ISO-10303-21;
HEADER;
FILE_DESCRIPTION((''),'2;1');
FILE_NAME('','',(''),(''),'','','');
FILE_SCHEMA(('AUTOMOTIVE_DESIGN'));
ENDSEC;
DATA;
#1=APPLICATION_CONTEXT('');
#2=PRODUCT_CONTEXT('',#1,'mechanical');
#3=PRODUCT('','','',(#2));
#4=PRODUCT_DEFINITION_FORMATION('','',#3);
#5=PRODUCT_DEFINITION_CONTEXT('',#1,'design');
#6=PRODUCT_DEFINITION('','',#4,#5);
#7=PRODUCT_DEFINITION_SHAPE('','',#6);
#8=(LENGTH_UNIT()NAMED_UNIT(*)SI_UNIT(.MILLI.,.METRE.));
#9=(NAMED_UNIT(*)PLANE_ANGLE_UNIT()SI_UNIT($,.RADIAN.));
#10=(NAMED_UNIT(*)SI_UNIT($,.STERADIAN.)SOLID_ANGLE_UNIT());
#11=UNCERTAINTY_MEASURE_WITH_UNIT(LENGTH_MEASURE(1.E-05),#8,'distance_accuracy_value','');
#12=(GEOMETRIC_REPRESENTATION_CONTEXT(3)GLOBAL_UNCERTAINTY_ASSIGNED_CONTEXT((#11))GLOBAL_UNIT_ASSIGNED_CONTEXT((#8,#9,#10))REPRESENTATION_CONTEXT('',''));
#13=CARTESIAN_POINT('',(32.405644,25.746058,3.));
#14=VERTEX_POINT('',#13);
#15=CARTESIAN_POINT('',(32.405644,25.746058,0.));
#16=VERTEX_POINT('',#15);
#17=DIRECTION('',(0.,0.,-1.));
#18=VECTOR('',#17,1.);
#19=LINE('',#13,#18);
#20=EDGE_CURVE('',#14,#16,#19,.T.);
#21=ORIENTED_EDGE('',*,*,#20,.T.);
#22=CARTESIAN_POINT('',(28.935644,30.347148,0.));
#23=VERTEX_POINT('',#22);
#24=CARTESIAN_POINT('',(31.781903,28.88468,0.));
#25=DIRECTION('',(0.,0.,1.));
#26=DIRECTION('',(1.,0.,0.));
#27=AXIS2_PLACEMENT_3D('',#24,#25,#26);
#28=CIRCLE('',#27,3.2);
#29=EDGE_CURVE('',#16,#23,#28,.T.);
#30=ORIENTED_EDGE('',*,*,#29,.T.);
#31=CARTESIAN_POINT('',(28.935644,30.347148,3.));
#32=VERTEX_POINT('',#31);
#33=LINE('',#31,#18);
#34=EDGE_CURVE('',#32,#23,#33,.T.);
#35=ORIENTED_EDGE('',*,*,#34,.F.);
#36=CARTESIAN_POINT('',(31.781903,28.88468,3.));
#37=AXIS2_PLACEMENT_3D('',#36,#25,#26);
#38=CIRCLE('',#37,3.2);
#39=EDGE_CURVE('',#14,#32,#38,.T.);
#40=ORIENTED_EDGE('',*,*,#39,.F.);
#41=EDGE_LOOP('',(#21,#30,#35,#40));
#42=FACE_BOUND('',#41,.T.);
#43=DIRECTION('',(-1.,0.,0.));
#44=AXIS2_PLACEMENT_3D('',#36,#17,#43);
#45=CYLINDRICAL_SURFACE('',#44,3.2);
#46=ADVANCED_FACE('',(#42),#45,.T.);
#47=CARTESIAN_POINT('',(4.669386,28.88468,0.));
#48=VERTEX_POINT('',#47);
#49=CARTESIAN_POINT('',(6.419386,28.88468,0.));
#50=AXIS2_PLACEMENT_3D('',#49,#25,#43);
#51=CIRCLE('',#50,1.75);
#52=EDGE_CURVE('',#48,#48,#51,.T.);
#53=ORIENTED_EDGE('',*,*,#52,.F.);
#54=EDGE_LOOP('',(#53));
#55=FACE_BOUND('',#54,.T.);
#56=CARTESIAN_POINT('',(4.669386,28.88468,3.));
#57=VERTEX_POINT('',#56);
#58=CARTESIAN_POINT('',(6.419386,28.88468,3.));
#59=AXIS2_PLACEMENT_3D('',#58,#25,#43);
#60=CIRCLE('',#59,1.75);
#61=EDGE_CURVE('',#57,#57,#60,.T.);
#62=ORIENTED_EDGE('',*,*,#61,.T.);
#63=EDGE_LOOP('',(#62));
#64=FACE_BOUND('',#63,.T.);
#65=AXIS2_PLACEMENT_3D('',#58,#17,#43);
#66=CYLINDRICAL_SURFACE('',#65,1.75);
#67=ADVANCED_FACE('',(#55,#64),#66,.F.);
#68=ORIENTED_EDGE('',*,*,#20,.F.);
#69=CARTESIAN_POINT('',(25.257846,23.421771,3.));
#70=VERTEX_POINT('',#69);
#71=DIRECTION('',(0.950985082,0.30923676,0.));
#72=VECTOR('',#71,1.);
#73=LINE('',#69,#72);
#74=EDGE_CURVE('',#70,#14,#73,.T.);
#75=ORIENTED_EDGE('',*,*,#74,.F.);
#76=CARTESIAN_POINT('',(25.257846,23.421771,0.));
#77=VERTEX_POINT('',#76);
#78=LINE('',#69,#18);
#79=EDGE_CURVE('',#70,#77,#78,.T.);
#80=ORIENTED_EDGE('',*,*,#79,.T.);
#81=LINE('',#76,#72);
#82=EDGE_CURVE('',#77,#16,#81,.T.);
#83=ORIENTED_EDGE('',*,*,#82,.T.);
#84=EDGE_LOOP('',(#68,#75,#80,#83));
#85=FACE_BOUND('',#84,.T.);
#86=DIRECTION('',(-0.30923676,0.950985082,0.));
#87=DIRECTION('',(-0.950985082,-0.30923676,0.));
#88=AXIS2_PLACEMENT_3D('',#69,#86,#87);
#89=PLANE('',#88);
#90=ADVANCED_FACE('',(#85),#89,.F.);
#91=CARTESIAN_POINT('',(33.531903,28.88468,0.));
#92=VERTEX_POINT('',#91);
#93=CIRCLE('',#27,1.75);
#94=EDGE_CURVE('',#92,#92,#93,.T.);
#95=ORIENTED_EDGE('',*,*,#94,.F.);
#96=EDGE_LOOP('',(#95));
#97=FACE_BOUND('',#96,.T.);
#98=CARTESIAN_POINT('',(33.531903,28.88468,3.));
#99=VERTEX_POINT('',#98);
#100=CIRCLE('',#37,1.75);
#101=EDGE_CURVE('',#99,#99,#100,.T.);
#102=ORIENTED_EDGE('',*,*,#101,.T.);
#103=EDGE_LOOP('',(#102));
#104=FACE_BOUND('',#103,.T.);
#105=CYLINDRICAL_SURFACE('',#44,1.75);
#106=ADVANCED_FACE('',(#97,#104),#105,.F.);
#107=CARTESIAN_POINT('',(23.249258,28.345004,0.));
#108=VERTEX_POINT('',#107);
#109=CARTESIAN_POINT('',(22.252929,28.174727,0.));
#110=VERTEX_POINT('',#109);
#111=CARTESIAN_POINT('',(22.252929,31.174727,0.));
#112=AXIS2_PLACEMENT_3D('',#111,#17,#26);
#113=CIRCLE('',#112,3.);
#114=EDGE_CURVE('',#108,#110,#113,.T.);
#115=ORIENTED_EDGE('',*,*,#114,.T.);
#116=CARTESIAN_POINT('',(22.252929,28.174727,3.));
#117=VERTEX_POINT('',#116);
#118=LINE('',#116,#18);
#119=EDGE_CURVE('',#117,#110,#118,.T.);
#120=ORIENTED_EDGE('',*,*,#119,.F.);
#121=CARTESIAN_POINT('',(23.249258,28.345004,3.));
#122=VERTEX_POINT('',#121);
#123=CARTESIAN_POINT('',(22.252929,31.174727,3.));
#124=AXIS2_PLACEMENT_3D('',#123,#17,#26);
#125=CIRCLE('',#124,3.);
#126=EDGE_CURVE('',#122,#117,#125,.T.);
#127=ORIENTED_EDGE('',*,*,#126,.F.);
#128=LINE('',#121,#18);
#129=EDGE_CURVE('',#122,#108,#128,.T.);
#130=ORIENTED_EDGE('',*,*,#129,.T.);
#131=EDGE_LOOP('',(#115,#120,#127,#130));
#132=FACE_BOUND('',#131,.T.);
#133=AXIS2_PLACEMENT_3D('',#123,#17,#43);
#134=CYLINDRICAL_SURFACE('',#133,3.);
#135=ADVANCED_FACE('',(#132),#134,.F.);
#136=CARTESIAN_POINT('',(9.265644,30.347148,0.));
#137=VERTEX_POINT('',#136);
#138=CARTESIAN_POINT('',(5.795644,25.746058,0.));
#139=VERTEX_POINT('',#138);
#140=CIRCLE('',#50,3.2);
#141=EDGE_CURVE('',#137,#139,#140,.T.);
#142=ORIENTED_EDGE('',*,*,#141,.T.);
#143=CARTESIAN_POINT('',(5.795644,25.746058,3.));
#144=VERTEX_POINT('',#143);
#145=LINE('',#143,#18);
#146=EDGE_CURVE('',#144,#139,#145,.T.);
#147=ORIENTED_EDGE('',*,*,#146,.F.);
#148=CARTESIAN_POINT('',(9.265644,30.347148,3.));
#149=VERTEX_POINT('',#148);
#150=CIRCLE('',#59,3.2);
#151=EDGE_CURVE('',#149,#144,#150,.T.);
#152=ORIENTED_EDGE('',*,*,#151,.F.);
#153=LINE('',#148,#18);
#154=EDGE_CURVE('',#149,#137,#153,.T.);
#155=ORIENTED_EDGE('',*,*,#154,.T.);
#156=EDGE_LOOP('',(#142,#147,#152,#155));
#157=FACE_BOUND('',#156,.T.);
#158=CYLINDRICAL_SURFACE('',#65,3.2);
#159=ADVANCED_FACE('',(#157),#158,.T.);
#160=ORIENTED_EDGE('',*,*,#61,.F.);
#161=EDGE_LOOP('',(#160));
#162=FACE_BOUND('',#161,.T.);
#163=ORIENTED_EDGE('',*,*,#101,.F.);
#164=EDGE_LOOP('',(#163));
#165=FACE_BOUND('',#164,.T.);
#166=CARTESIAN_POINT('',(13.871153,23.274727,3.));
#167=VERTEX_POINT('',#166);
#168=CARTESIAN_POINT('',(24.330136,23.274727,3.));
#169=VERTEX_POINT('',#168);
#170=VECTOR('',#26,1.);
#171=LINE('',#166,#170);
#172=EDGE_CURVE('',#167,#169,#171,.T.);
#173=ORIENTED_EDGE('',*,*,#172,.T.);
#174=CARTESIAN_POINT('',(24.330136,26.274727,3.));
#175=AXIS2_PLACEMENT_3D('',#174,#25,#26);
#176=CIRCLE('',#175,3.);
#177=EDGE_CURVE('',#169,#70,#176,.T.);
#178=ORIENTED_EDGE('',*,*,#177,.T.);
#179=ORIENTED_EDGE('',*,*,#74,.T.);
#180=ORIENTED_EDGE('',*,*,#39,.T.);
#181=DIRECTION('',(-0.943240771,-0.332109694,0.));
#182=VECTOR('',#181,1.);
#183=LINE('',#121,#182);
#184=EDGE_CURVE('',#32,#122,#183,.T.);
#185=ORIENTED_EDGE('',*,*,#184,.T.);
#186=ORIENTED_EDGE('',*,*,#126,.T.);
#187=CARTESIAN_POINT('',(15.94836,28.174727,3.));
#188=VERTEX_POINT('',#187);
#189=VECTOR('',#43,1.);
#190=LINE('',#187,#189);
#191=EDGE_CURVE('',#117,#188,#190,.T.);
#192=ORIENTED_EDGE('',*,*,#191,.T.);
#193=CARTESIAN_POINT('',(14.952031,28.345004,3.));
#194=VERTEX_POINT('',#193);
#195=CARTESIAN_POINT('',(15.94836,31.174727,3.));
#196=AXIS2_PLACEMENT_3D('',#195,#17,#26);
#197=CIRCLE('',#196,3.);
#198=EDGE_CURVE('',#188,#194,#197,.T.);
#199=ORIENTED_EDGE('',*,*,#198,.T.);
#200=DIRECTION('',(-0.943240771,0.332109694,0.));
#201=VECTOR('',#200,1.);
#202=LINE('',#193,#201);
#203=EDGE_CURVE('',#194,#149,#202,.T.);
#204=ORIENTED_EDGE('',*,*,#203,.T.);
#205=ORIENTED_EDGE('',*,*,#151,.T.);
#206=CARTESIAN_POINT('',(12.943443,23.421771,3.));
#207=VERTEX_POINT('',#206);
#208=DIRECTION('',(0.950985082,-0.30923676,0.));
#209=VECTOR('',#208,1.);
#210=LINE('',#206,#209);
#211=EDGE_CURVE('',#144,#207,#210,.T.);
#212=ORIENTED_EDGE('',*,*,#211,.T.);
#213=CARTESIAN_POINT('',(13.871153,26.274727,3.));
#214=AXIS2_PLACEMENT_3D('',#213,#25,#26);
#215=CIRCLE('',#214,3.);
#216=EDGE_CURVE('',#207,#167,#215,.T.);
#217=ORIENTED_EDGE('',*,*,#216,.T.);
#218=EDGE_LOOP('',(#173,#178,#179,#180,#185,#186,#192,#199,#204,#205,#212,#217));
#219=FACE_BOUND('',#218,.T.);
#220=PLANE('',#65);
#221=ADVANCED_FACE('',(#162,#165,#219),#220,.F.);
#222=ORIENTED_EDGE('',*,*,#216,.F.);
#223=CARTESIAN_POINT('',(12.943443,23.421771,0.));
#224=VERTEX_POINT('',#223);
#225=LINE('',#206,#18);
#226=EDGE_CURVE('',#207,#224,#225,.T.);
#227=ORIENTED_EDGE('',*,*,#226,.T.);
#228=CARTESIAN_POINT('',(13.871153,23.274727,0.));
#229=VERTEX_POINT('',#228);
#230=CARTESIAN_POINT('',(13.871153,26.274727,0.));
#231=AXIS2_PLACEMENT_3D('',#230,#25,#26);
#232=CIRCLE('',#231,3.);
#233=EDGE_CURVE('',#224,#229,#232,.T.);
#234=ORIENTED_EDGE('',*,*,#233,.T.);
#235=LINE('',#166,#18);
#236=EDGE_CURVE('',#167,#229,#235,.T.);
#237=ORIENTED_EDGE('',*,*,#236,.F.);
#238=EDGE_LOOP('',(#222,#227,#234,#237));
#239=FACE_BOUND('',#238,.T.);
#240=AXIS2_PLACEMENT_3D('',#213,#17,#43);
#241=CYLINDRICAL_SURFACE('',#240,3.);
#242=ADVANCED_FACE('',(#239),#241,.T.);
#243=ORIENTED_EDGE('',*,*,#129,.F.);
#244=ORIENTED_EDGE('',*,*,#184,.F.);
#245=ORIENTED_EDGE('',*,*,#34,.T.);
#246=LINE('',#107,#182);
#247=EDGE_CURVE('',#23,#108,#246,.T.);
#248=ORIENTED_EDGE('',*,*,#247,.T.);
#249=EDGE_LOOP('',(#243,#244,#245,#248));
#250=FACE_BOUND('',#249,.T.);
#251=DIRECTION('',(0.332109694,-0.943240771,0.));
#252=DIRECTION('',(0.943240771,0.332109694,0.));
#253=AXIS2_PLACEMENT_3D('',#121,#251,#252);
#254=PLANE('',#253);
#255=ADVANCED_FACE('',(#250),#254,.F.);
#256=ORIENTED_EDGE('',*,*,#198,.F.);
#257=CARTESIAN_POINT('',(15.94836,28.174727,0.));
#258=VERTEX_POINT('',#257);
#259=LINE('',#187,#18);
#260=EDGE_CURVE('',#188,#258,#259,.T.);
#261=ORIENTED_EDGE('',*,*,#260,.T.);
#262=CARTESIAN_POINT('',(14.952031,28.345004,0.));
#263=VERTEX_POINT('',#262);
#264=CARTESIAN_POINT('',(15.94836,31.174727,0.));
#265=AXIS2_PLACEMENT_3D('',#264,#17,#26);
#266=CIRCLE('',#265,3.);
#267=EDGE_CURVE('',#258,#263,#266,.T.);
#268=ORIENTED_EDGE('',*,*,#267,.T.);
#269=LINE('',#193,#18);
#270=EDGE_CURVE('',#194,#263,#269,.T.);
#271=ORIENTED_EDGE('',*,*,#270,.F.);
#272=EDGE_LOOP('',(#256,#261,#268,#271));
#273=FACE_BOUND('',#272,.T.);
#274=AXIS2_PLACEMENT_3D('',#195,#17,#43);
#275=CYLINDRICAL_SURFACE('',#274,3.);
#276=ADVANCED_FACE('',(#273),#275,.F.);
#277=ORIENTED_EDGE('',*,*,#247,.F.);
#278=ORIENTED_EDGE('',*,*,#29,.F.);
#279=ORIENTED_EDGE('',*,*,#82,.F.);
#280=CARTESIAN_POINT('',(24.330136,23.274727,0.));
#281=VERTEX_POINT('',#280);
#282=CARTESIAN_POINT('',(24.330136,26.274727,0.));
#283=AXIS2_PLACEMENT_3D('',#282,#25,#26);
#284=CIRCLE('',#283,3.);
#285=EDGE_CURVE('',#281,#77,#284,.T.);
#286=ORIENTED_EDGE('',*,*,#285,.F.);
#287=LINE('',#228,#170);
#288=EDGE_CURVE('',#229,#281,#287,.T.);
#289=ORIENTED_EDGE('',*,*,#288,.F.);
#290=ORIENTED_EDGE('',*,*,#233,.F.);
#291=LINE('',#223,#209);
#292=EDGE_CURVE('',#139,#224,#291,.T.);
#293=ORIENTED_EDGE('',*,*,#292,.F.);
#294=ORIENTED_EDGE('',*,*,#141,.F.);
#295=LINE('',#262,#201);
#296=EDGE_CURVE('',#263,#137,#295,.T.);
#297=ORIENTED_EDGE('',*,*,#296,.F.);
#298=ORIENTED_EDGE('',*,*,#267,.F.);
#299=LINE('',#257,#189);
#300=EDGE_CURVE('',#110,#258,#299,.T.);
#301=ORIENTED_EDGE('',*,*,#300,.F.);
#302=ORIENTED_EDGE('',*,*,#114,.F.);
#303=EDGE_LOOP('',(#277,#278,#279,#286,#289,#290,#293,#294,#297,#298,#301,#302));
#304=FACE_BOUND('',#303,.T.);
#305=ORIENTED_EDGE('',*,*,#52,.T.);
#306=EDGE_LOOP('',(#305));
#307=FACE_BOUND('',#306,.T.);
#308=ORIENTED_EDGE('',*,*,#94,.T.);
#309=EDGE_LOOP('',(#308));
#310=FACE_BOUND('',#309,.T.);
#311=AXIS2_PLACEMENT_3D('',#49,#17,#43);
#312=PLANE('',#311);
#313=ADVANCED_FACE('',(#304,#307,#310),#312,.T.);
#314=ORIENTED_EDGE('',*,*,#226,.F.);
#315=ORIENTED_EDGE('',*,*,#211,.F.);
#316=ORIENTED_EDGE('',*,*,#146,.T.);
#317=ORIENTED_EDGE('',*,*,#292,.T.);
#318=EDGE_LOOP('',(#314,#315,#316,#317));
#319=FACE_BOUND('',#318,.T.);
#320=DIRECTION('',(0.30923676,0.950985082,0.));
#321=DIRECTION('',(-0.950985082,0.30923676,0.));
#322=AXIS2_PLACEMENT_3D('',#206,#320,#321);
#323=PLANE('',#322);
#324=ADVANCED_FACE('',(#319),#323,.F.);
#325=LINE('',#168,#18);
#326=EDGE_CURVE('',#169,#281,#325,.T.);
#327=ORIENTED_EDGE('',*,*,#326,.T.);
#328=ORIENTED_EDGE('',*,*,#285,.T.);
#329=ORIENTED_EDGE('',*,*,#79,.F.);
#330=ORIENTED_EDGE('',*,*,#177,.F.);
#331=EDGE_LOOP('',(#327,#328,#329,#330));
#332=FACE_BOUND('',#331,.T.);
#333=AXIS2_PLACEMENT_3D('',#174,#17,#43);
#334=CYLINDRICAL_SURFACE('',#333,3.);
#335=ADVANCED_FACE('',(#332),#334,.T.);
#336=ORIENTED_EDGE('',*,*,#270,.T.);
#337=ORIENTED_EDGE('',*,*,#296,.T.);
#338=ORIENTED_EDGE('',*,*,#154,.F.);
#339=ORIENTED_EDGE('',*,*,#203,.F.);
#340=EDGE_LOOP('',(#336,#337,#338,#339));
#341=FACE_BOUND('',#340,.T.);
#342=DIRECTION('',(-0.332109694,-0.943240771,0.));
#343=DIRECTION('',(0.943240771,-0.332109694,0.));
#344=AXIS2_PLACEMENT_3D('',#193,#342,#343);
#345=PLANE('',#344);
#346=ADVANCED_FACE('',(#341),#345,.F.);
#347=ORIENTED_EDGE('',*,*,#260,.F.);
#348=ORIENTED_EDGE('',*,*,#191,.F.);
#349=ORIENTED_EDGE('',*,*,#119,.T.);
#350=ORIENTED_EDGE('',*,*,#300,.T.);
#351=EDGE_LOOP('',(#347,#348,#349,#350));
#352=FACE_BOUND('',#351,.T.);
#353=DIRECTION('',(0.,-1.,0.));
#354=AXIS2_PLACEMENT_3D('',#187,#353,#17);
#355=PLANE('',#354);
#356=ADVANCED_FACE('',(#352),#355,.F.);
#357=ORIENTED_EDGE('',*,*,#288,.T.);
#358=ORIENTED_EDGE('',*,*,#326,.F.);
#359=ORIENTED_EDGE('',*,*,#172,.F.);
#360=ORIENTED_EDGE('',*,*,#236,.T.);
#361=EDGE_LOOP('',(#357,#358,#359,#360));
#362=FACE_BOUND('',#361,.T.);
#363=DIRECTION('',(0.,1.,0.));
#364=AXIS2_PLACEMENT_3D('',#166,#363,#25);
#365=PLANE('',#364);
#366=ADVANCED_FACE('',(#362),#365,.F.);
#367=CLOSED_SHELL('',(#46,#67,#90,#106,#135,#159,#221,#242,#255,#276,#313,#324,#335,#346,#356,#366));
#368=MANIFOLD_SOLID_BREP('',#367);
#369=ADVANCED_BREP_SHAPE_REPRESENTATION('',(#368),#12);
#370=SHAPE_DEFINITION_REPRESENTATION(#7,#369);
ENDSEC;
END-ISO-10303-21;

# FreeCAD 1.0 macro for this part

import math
import FreeCAD as App
import Part
import Sketcher

doc = App.newDocument("Part")
body = doc.addObject("PartDesign::Body", "Body")

# Sketch on XY plane
sketch1 = body.newObject("Sketcher::SketchObject", "Sketch")
sketch1.AttachmentSupport = (doc.getObject("XY_Plane"), [""])
sketch1.MapMode = "FlatFace"
sketch1.addGeometry(Part.LineSegment(App.Vector(13.9, 23.3, 0), App.Vector(24.3, 23.3, 0)), False)
sketch1.addGeometry(Part.ArcOfCircle(Part.Circle(App.Vector(24.3, 26.3, 0), App.Vector(0, 0, 1), 3), math.radians(-90), math.radians(-71.99)), False)
sketch1.addGeometry(Part.LineSegment(App.Vector(25.3, 23.4, 0), App.Vector(32.4, 25.7, 0)), False)
sketch1.addGeometry(Part.ArcOfCircle(Part.Circle(App.Vector(31.8, 28.9, 0), App.Vector(0, 0, 1), 3.2), math.radians(-79), math.radians(153)), False)
sketch1.addGeometry(Part.LineSegment(App.Vector(28.9, 30.3, 0), App.Vector(23.2, 28.3, 0)), False)
sketch1.addGeometry(Part.ArcOfCircle(Part.Circle(App.Vector(22.3, 31.2, 0), App.Vector(0, 0, 1), 3), math.radians(-90), math.radians(-70.6)), False)
sketch1.addGeometry(Part.LineSegment(App.Vector(22.3, 28.2, 0), App.Vector(15.9, 28.2, 0)), False)
sketch1.addGeometry(Part.ArcOfCircle(Part.Circle(App.Vector(15.9, 31.2, 0), App.Vector(0, 0, 1), 3), math.radians(-109.4), math.radians(-90)), False)
sketch1.addGeometry(Part.LineSegment(App.Vector(15, 28.3, 0), App.Vector(9.3, 30.3, 0)), False)
sketch1.addGeometry(Part.ArcOfCircle(Part.Circle(App.Vector(6.4, 28.9, 0), App.Vector(0, 0, 1), 3.2), math.radians(27), math.radians(259)), False)
sketch1.addGeometry(Part.LineSegment(App.Vector(5.8, 25.7, 0), App.Vector(12.9, 23.4, 0)), False)
sketch1.addGeometry(Part.ArcOfCircle(Part.Circle(App.Vector(13.9, 26.3, 0), App.Vector(0, 0, 1), 3), math.radians(-108.01), math.radians(-90)), False)
sketch1.addGeometry(Part.Circle(App.Vector(6.4, 28.9, 0), App.Vector(0, 0, 1), 1.8), False)
sketch1.addGeometry(Part.Circle(App.Vector(31.8, 28.9, 0), App.Vector(0, 0, 1), 1.8), False)
sketch1.addConstraint(Sketcher.Constraint("Tangent", 0, 2, 1, 1))
sketch1.addConstraint(Sketcher.Constraint("Tangent", 1, 2, 2, 1))
sketch1.addConstraint(Sketcher.Constraint("Coincident", 2, 2, 3, 1))
sketch1.addConstraint(Sketcher.Constraint("Coincident", 3, 2, 4, 1))
sketch1.addConstraint(Sketcher.Constraint("Tangent", 4, 2, 5, 2))
sketch1.addConstraint(Sketcher.Constraint("Tangent", 5, 1, 6, 1))
sketch1.addConstraint(Sketcher.Constraint("Tangent", 6, 2, 7, 2))
sketch1.addConstraint(Sketcher.Constraint("Tangent", 7, 1, 8, 1))
sketch1.addConstraint(Sketcher.Constraint("Coincident", 8, 2, 9, 1))
sketch1.addConstraint(Sketcher.Constraint("Coincident", 9, 2, 10, 1))
sketch1.addConstraint(Sketcher.Constraint("Tangent", 10, 2, 11, 1))
sketch1.addConstraint(Sketcher.Constraint("Tangent", 11, 2, 0, 1))
sketch1.addConstraint(Sketcher.Constraint("Horizontal", 0))
sketch1.addConstraint(Sketcher.Constraint("Horizontal", 6))
sketch1.addConstraint(Sketcher.Constraint("Coincident", 12, 3, 9, 3))
sketch1.addConstraint(Sketcher.Constraint("Coincident", 13, 3, 3, 3))
sketch1.addConstraint(Sketcher.Constraint("Equal", 1, 5))
sketch1.addConstraint(Sketcher.Constraint("Equal", 5, 7))
sketch1.addConstraint(Sketcher.Constraint("Equal", 3, 9))
sketch1.addConstraint(Sketcher.Constraint("Equal", 7, 11))
sketch1.addConstraint(Sketcher.Constraint("Equal", 12, 13))
sketch1.addConstraint(Sketcher.Constraint("Horizontal", 3, 3, 9, 3))
sketch1.addConstraint(Sketcher.Constraint("Horizontal", 4, 2, 7, 1))
sketch1.addConstraint(Sketcher.Constraint("Horizontal", 3, 2, 8, 2))
sketch1.addConstraint(Sketcher.Constraint("Horizontal", 2, 2, 9, 2))
sketch1.addConstraint(Sketcher.Constraint("Horizontal", 1, 2, 10, 2))
sketch1.addConstraint(Sketcher.Constraint("Radius", 1, 3.0))
sketch1.addConstraint(Sketcher.Constraint("Diameter", 12, 3.5))
sketch1.addConstraint(Sketcher.Constraint("Radius", 3, 3.2))
sketch1.addConstraint(Sketcher.Constraint("DistanceY", 1, 3, 5, 3, 4.9))
sketch1.addConstraint(Sketcher.Constraint("DistanceX", 3, 2, 2, 2, 3.47))
sketch1.addConstraint(Sketcher.Constraint("DistanceX", 6, 2, 6, 1, 6.30457))
sketch1.addConstraint(Sketcher.Constraint("DistanceX", 1, 2, 2, 2, 7.147798))
sketch1.addConstraint(Sketcher.Constraint("DistanceX", 6, 2, 4, 2, 7.300899))
sketch1.addConstraint(Sketcher.Constraint("DistanceX", 0, 1, 0, 2, 10.458983))
sketch1.addConstraint(Sketcher.Constraint("DistanceY", -1, 1, 3, 3, 28.88468))
sketch1.addConstraint(Sketcher.Constraint("DistanceX", -1, 1, 5, 3, 22.252929))
sketch1.addConstraint(Sketcher.Constraint("DistanceY", -1, 1, 1, 2, 23.421771))
pad1 = body.newObject("PartDesign::Pad", "Pad")
pad1.Profile = sketch1
pad1.Length = 3

doc.recompute()
